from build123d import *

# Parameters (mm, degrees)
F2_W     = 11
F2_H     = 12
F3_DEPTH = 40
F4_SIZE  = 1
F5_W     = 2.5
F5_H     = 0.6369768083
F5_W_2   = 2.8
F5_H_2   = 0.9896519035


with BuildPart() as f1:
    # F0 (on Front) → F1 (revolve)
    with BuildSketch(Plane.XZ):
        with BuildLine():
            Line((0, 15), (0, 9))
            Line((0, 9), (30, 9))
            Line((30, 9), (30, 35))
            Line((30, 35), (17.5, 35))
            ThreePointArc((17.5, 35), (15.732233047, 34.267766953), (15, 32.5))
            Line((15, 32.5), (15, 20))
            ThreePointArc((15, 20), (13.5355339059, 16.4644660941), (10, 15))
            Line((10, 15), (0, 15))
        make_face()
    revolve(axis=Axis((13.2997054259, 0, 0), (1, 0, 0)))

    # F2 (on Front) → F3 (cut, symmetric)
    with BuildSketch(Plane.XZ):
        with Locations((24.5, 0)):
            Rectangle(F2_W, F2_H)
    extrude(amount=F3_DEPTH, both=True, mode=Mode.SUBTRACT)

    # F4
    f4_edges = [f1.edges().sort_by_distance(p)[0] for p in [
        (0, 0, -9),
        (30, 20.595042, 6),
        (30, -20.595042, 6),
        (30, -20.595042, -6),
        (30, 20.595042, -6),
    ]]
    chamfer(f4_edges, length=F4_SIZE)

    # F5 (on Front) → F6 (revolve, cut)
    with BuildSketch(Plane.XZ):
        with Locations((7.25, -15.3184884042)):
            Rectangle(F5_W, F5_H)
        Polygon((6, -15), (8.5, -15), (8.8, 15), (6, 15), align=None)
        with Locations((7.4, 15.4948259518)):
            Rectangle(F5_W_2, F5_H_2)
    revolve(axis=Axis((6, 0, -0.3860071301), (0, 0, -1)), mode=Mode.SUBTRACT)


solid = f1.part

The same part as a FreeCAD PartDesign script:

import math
import FreeCAD as App
import Part
import Sketcher
Q = App.Units.Quantity


def edges_at(feature, points):
    """Names of the edges that pass closest to the given points."""
    edges = feature.Shape.Edges
    near = lambda p: min(range(len(edges)), key=lambda i: edges[i].distToShape(Part.Vertex(*p))[0])
    return sorted({f"Edge{near(p) + 1}" for p in points})


def add_polygon(sketch, points):
    """Adds a closed chain of lines whose ends are joined by coincident constraints."""
    first, n = sketch.GeometryCount, len(points)
    for a, b in zip(points, points[1:] + points[:1]):
        sketch.addGeometry(Part.LineSegment(App.Vector(*a, 0), App.Vector(*b, 0)), False)
    for i in range(n):
        sketch.addConstraint(Sketcher.Constraint("Coincident", first + i, 2, first + (i + 1) % n, 1))

doc = App.newDocument("Part")
body = doc.addObject("PartDesign::Body", "Body")

sketch1 = doc.addObject("Sketcher::SketchObject", "Sketch")
body.addObject(sketch1)
sketch1.AttachmentSupport = (doc.XZ_Plane, [""])
sketch1.MapMode = "FlatFace"
sketch1.addGeometry([
    Part.LineSegment(App.Vector(0, 15, 0), App.Vector(0, 9, 0)),
    Part.LineSegment(App.Vector(0, 9, 0), App.Vector(30, 9, 0)),
    Part.LineSegment(App.Vector(30, 9, 0), App.Vector(30, 35, 0)),
    Part.LineSegment(App.Vector(30, 35, 0), App.Vector(17.5, 35, 0)),
    Part.ArcOfCircle(Part.Circle(App.Vector(17.5, 32.5, 0), App.Vector(0, 0, 1), 2.5), math.radians(90), math.radians(180)),
    Part.LineSegment(App.Vector(15, 32.5, 0), App.Vector(15, 20, 0)),
    Part.ArcOfCircle(Part.Circle(App.Vector(10, 20, 0), App.Vector(0, 0, 1), 5), math.radians(-90), math.radians(0)),
    Part.LineSegment(App.Vector(10, 15, 0), App.Vector(0, 15, 0)),
], False)
sketch1.addConstraint([
    Sketcher.Constraint("Coincident", 0, 2, 1, 1),
    Sketcher.Constraint("Coincident", 1, 2, 2, 1),
    Sketcher.Constraint("Coincident", 2, 2, 3, 1),
    Sketcher.Constraint("Tangent", 3, 2, 4, 1),
    Sketcher.Constraint("Tangent", 4, 2, 5, 1),
    Sketcher.Constraint("Tangent", 5, 2, 6, 2),
    Sketcher.Constraint("Tangent", 6, 1, 7, 1),
    Sketcher.Constraint("Coincident", 7, 2, 0, 1),
    Sketcher.Constraint("Vertical", 0),
    Sketcher.Constraint("Horizontal", 1),
    Sketcher.Constraint("Vertical", 2),
    Sketcher.Constraint("Horizontal", 3),
    Sketcher.Constraint("Vertical", 5),
    Sketcher.Constraint("Horizontal", 7),
    Sketcher.Constraint("PointOnObject", 0, 2, -2),
    Sketcher.Constraint("Equal", 3, 5),
    Sketcher.Constraint("Radius", 6, Q("5 mm")),
    Sketcher.Constraint("Radius", 4, Q("2.5 mm")),
    Sketcher.Constraint("DistanceX", 1, 1, 1, 2, Q("30 mm")),
    Sketcher.Constraint("DistanceX", 7, 2, 7, 1, Q("10 mm")),
    Sketcher.Constraint("DistanceY", 0, 2, 0, 1, Q("6 mm")),
    Sketcher.Constraint("DistanceY", -1, 1, 6, 3, Q("20 mm")),
])
revolution = doc.addObject("PartDesign::Revolution", "Revolution")
body.addObject(revolution)
revolution.Profile = sketch1
revolution.ReferenceAxis = (sketch1, ["H_Axis"])
revolution.Angle = 360

sketch2 = doc.addObject("Sketcher::SketchObject", "Sketch001")
body.addObject(sketch2)
sketch2.AttachmentSupport = (doc.XZ_Plane, [""])
sketch2.MapMode = "FlatFace"
add_polygon(sketch2, [(19, 6), (19, -6), (30, -6), (30, 6)])
sketch2.addConstraint([
    Sketcher.Constraint("Vertical", 0),
    Sketcher.Constraint("Horizontal", 1),
    Sketcher.Constraint("Vertical", 2),
    Sketcher.Constraint("Horizontal", 3),
    Sketcher.Constraint("DistanceX", 1, 1, 1, 2, Q("11 mm")),
    Sketcher.Constraint("DistanceY", 0, 2, 0, 1, Q("12 mm")),
    Sketcher.Constraint("DistanceX", -1, 1, 0, 2, Q("19 mm")),
    Sketcher.Constraint("DistanceY", 0, 2, -1, 1, Q("6 mm")),
])
pocket1 = doc.addObject("PartDesign::Pocket", "Pocket")
body.addObject(pocket1)
pocket1.Profile = sketch2
pocket1.Length = 80
pocket1.Midplane = True
doc.recompute()

chamfer = doc.addObject("PartDesign::Chamfer", "Chamfer")
body.addObject(chamfer)
chamfer.Base = (pocket1, edges_at(pocket1, [
    (0, 0, -9),
    (30, 20.595, 6),
    (30, -20.595, 6),
    (30, -20.595, -6),
    (30, 20.595, -6),
]))
chamfer.Size = 1

sketch3 = doc.addObject("Sketcher::SketchObject", "Sketch002")
body.addObject(sketch3)
sketch3.AttachmentSupport = (doc.XZ_Plane, [""])
sketch3.MapMode = "FlatFace"
add_polygon(sketch3, [(6, -15.636977), (8.5, -15.636977), (8.5, -15), (8.8, 15), (8.8, 15.989652), (6, 15.989652)])
sketch3.addGeometry(Part.LineSegment(App.Vector(6, 15.989652, 0), App.Vector(6, -15.636977, 0)), True)
sketch3.addConstraint([
    Sketcher.Constraint("Horizontal", 0),
    Sketcher.Constraint("Vertical", 1),
    Sketcher.Constraint("Vertical", 3),
    Sketcher.Constraint("Horizontal", 4),
    Sketcher.Constraint("Vertical", 5),
    Sketcher.Constraint("Vertical", 6),
    Sketcher.Constraint("Coincident", 6, 1, 4, 2),
    Sketcher.Constraint("Horizontal", 0, 2, 6, 2),
    Sketcher.Constraint("DistanceX", 0, 1, 0, 2, Q("2.5 mm")),
    Sketcher.Constraint("DistanceX", 4, 2, 4, 1, Q("2.8 mm")),
    Sketcher.Constraint("DistanceY", 1, 2, -1, 1, Q("15 mm")),
    Sketcher.Constraint("DistanceY", -1, 1, 2, 2, Q("15 mm")),
    Sketcher.Constraint("DistanceX", -1, 1, 4, 2, Q("6 mm")),
    Sketcher.Constraint("DistanceY", 3, 1, 3, 2, Q("0.989652 mm")),
    Sketcher.Constraint("DistanceY", 5, 2, 5, 1, Q("31.626629 mm")),
])
groove = doc.addObject("PartDesign::Groove", "Groove")
body.addObject(groove)
groove.Profile = sketch3
groove.ReferenceAxis = (sketch3, ["Axis0"])
groove.Angle = 360

doc.recompute()
